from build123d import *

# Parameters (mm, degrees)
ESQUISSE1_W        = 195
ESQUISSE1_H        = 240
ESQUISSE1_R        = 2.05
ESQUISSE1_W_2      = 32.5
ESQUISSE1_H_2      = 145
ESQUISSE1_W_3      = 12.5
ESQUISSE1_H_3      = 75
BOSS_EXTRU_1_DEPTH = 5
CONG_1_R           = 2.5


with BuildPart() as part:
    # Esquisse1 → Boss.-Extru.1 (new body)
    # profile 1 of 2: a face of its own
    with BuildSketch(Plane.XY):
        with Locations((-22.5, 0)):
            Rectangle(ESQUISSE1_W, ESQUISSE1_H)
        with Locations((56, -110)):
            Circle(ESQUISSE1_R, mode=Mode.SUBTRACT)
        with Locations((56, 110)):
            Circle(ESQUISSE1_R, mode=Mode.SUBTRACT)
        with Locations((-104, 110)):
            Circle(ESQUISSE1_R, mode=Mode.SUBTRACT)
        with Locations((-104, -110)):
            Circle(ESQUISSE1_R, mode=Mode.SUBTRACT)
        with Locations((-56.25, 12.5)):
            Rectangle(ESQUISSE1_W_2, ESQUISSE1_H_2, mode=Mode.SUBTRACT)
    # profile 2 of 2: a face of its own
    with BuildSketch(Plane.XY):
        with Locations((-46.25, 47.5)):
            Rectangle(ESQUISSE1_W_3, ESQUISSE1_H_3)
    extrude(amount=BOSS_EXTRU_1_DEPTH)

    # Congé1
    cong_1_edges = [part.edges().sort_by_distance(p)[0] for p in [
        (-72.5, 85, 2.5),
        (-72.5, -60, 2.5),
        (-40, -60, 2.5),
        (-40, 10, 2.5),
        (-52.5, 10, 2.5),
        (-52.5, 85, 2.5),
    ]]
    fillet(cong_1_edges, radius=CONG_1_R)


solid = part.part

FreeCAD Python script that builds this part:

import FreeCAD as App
import Part
import Sketcher

V = App.Vector
Q = App.Units.Quantity


def edges_at(feature, points):
    """Names of the edges that pass closest to the given points."""
    edges = feature.Shape.Edges
    near = lambda p: min(range(len(edges)), key=lambda i: edges[i].distToShape(Part.Vertex(*p))[0])
    return sorted({f"Edge{near(p) + 1}" for p in points})


def add_polygon(sketch, points):
    """Adds a closed chain of lines whose ends are joined by coincident constraints."""
    first, n = sketch.GeometryCount, len(points)
    for a, b in zip(points, points[1:] + points[:1]):
        sketch.addGeometry(Part.LineSegment(App.Vector(*a, 0), App.Vector(*b, 0)), False)
    for i in range(n):
        sketch.addConstraint(Sketcher.Constraint("Coincident", first + i, 2, first + (i + 1) % n, 1))

doc = App.newDocument("Part")
body = doc.addObject("PartDesign::Body", "Body")

# Sketch on XY plane
sketch1 = body.newObject("Sketcher::SketchObject", "Sketch")
sketch1.AttachmentSupport = (doc.getObject("XY_Plane"), [""])
sketch1.MapMode = "FlatFace"
add_polygon(sketch1, [(-120, 120), (-120, -120), (75, -120), (75, 120)])  # lines 0-3
sketch1.addGeometry(Part.Circle(V(-104, -110, 0), V(0, 0, 1), 2), False)  # 4
sketch1.addGeometry(Part.Circle(V(56, -110, 0), V(0, 0, 1), 2), False)  # 5
add_polygon(sketch1, [(-40, -60), (-72.5, -60), (-72.5, 85), (-52.5, 85), (-52.5, 10), (-40, 10)])  # lines 6-11
sketch1.addGeometry(Part.Circle(V(-104, 110, 0), V(0, 0, 1), 2), False)  # 12
sketch1.addGeometry(Part.Circle(V(56, 110, 0), V(0, 0, 1), 2), False)  # 13
sketch1.addConstraint([
    Sketcher.Constraint("Vertical", 0),
    Sketcher.Constraint("Horizontal", 1),
    Sketcher.Constraint("Vertical", 2),
    Sketcher.Constraint("Horizontal", 3),
    Sketcher.Constraint("Horizontal", 6),
    Sketcher.Constraint("Vertical", 7),
    Sketcher.Constraint("Horizontal", 8),
    Sketcher.Constraint("Vertical", 9),
    Sketcher.Constraint("Horizontal", 10),
    Sketcher.Constraint("Vertical", 11),
    Sketcher.Constraint("Equal", 4, 5),
    Sketcher.Constraint("Equal", 5, 12),
    Sketcher.Constraint("Equal", 12, 13),
    Sketcher.Constraint("Symmetric", 4, 3, 12, 3, -1),
    Sketcher.Constraint("Symmetric", 5, 3, 13, 3, -1),
    Sketcher.Constraint("Horizontal", 4, 3, 5, 3),
    Sketcher.Constraint("Diameter", 4, Q("4.1 mm")),
    Sketcher.Constraint("DistanceX", 1, 1, 1, 2, Q("195 mm")),
    Sketcher.Constraint("DistanceX", 8, 1, 8, 2, Q("20 mm")),
    Sketcher.Constraint("DistanceY", 0, 2, 0, 1, Q("240 mm")),
    Sketcher.Constraint("DistanceY", 7, 1, 7, 2, Q("145 mm")),
    Sketcher.Constraint("DistanceY", 9, 2, 9, 1, Q("75 mm")),
    Sketcher.Constraint("DistanceX", 6, 2, 6, 1, Q("32.5 mm")),
    Sketcher.Constraint("DistanceX", 4, 3, -1, 1, Q("104 mm")),
    Sketcher.Constraint("DistanceY", 4, 3, -1, 1, Q("110 mm")),
    Sketcher.Constraint("DistanceX", -1, 1, 5, 3, Q("56 mm")),
    Sketcher.Constraint("DistanceX", 0, 2, -1, 1, Q("120 mm")),
    Sketcher.Constraint("DistanceY", 0, 2, -1, 1, Q("120 mm")),
    Sketcher.Constraint("DistanceY", 6, 2, -1, 1, Q("60 mm")),
    Sketcher.Constraint("DistanceX", 10, 2, -1, 1, Q("40 mm")),
])
pad1 = body.newObject("PartDesign::Pad", "Pad")
pad1.Profile = sketch1
pad1.Length = 5
doc.recompute()

fillet = body.newObject("PartDesign::Fillet", "Fillet")
fillet.Base = (pad1, edges_at(pad1, [
    (-72.5, 85, 2.5),
    (-72.5, -60, 2.5),
    (-40, -60, 2.5),
    (-40, 10, 2.5),
    (-52.5, 10, 2.5),
    (-52.5, 85, 2.5),
]))
fillet.Radius = 2.5

doc.recompute()
